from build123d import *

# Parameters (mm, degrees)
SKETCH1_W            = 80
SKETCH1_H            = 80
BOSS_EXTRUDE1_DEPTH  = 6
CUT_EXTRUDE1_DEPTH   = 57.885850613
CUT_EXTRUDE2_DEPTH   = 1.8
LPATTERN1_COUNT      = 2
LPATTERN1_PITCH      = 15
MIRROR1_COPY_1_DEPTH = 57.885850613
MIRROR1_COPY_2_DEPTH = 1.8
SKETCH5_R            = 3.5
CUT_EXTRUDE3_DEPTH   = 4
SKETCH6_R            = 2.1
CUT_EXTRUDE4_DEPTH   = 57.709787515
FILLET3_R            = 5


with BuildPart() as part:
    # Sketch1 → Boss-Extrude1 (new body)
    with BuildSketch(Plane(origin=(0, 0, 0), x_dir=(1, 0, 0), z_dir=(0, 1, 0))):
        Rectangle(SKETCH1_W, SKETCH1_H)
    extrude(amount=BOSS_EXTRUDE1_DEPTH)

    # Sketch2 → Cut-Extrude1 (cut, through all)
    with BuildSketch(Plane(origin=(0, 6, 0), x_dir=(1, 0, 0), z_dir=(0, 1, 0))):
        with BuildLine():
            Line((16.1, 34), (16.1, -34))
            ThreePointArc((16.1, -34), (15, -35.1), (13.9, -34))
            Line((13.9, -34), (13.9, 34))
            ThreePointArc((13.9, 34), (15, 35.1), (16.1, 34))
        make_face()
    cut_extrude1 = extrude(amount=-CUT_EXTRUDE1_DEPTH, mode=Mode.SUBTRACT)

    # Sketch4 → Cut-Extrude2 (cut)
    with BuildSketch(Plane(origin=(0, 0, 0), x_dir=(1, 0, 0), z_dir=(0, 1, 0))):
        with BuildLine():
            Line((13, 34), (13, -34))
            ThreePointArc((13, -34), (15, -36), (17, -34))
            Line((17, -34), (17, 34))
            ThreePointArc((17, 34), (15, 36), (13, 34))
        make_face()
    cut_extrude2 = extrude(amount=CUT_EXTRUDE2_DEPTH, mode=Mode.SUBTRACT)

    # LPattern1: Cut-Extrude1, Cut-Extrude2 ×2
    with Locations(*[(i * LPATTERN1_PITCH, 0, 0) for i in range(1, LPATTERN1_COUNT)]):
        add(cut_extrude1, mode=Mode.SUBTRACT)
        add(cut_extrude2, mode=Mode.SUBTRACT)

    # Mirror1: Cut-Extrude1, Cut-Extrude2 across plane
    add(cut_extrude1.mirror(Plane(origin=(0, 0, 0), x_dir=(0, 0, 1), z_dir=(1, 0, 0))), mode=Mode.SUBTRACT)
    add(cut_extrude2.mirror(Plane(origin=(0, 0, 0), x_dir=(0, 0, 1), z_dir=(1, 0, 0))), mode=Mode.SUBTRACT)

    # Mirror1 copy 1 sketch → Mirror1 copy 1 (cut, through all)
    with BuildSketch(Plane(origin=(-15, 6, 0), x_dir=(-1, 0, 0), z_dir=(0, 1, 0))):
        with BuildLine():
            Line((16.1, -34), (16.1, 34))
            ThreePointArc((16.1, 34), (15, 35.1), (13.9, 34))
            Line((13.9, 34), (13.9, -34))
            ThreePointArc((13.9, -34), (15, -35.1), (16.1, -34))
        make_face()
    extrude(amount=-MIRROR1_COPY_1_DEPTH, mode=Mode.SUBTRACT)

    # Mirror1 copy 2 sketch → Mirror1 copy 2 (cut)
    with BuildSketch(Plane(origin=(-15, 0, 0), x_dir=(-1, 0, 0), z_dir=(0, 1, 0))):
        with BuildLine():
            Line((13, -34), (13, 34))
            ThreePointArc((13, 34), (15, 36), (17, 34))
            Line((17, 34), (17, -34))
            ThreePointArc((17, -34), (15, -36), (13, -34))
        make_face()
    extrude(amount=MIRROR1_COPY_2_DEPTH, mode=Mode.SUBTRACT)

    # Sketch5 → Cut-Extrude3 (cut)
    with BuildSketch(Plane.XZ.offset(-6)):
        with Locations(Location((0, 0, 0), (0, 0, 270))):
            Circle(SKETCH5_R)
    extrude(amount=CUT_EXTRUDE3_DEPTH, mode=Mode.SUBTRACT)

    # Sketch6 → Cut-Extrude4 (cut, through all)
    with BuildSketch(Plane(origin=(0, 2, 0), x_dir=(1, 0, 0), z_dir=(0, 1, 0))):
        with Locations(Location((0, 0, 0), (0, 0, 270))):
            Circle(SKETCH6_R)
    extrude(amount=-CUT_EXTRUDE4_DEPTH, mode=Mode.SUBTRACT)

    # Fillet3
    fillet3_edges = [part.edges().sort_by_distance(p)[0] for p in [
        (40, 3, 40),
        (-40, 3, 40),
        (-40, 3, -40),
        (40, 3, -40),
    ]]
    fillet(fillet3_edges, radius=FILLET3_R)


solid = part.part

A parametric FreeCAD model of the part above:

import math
import FreeCAD as App
import Part
import Sketcher
from FreeCAD import Vector


def edges_at(feature, points):
    """Names of the edges that pass closest to the given points."""
    edges = feature.Shape.Edges
    near = lambda p: min(range(len(edges)), key=lambda i: edges[i].distToShape(Part.Vertex(*p))[0])
    return sorted({f"Edge{near(p) + 1}" for p in points})

doc = App.newDocument("Part")
body = doc.addObject("PartDesign::Body", "Body")

# Sketch on XZ plane
sketch1 = doc.addObject("Sketcher::SketchObject", "Sketch")
body.addObject(sketch1)
sketch1.AttachmentSupport = (doc.XZ_Plane, [""])
sketch1.MapMode = "FlatFace"
sketch1.addGeometry([
    Part.LineSegment(Vector(-40, -40, 0), Vector(-40, 40, 0)),
    Part.LineSegment(Vector(-40, 40, 0), Vector(40, 40, 0)),
    Part.LineSegment(Vector(40, 40, 0), Vector(40, -40, 0)),
    Part.LineSegment(Vector(40, -40, 0), Vector(-40, -40, 0)),
], False)
sketch1.addConstraint([
    Sketcher.Constraint("Coincident", 0, 2, 1, 1),
    Sketcher.Constraint("Coincident", 1, 2, 2, 1),
    Sketcher.Constraint("Coincident", 2, 2, 3, 1),
    Sketcher.Constraint("Coincident", 3, 2, 0, 1),
    Sketcher.Constraint("Vertical", 0),
    Sketcher.Constraint("Horizontal", 1),
    Sketcher.Constraint("Vertical", 2),
    Sketcher.Constraint("Horizontal", 3),
    Sketcher.Constraint("Symmetric", 0, 2, 2, 2, -1, 1),
    Sketcher.Constraint("Equal", 3, 0),
    Sketcher.Constraint("DistanceX", 1, 1, 1, 2, 80.0),
])
pad1 = doc.addObject("PartDesign::Pad", "Pad")
body.addObject(pad1)
pad1.Profile = sketch1
pad1.Length = 6
pad1.Reversed = True

# Sketch on XZ plane
sketch2 = doc.addObject("Sketcher::SketchObject", "Sketch001")
body.addObject(sketch2)
sketch2.AttachmentSupport = (doc.XZ_Plane, [""])
sketch2.MapMode = "FlatFace"
sketch2.AttachmentOffset = App.Placement(Vector(0, 0, -6), App.Rotation())
sketch2.addGeometry([
    Part.LineSegment(Vector(16.1, 34, 0), Vector(16.1, -34, 0)),
    Part.ArcOfCircle(Part.Circle(Vector(15, -34, 0), Vector(0, 0, 1), 1.1), math.radians(180), math.radians(360)),
    Part.LineSegment(Vector(13.9, -34, 0), Vector(13.9, 34, 0)),
    Part.ArcOfCircle(Part.Circle(Vector(15, 34, 0), Vector(0, 0, 1), 1.1), math.radians(0), math.radians(180)),
], False)
sketch2.addConstraint([
    Sketcher.Constraint("Tangent", 0, 2, 1, 2),
    Sketcher.Constraint("Tangent", 1, 1, 2, 1),
    Sketcher.Constraint("Tangent", 2, 2, 3, 2),
    Sketcher.Constraint("Tangent", 3, 1, 0, 1),
    Sketcher.Constraint("Vertical", 0),
    Sketcher.Constraint("Vertical", 2),
    Sketcher.Constraint("Radius", 1, 1.1),
    Sketcher.Constraint("DistanceY", 0, 2, 0, 1, 68.0),
    Sketcher.Constraint("DistanceX", -1, 1, 1, 3, 15.0),
    Sketcher.Constraint("DistanceY", 1, 3, -1, 1, 34.0),
])
pocket1 = doc.addObject("PartDesign::Pocket", "Pocket")
body.addObject(pocket1)
pocket1.Profile = sketch2
pocket1.Type = "ThroughAll"
pocket1.Reversed = True

# Sketch on XZ plane
sketch3 = doc.addObject("Sketcher::SketchObject", "Sketch002")
body.addObject(sketch3)
sketch3.AttachmentSupport = (doc.XZ_Plane, [""])
sketch3.MapMode = "FlatFace"
sketch3.addGeometry([
    Part.LineSegment(Vector(13, -34, 0), Vector(13, 34, 0)),
    Part.ArcOfCircle(Part.Circle(Vector(15, 34, 0), Vector(0, 0, 1), 2), math.radians(0), math.radians(180)),
    Part.LineSegment(Vector(17, 34, 0), Vector(17, -34, 0)),
    Part.ArcOfCircle(Part.Circle(Vector(15, -34, 0), Vector(0, 0, 1), 2), math.radians(180), math.radians(360)),
], False)
sketch3.addConstraint([
    Sketcher.Constraint("Tangent", 0, 2, 1, 2),
    Sketcher.Constraint("Tangent", 1, 1, 2, 1),
    Sketcher.Constraint("Tangent", 2, 2, 3, 2),
    Sketcher.Constraint("Tangent", 3, 1, 0, 1),
    Sketcher.Constraint("Vertical", 0),
    Sketcher.Constraint("Vertical", 2),
    Sketcher.Constraint("Radius", 1, 2.0),
    Sketcher.Constraint("DistanceY", 0, 1, 0, 2, 68.0),
    Sketcher.Constraint("DistanceX", -1, 1, 1, 3, 15.0),
    Sketcher.Constraint("DistanceY", -1, 1, 1, 3, 34.0),
])
pocket2 = doc.addObject("PartDesign::Pocket", "Pocket001")
body.addObject(pocket2)
pocket2.Profile = sketch3
pocket2.Length = 1.8
doc.recompute()

linearpattern = doc.addObject("PartDesign::LinearPattern", "LinearPattern")
body.addObject(linearpattern)
linearpattern.Originals = [pocket1, pocket2]
linearpattern.Direction = (doc.X_Axis, [""])
linearpattern.Mode = "offset"
linearpattern.Offset = 15
linearpattern.Occurrences = 2
body.Tip = linearpattern
doc.recompute()

mirrored = doc.addObject("PartDesign::Mirrored", "Mirrored")
body.addObject(mirrored)
mirrored.Originals = [pocket1, pocket2]
mirrored.MirrorPlane = (doc.YZ_Plane, [""])
body.Tip = mirrored

# Sketch on XZ plane
sketch4 = doc.addObject("Sketcher::SketchObject", "Sketch003")
body.addObject(sketch4)
sketch4.AttachmentSupport = (doc.XZ_Plane, [""])
sketch4.MapMode = "FlatFace"
sketch4.AttachmentOffset = App.Placement(Vector(0, 0, -6), App.Rotation())
sketch4.addGeometry([
    Part.LineSegment(Vector(-31.1, -34, 0), Vector(-31.1, 34, 0)),
    Part.ArcOfCircle(Part.Circle(Vector(-30, 34, 0), Vector(0, 0, 1), 1.1), math.radians(0), math.radians(180)),
    Part.LineSegment(Vector(-28.9, 34, 0), Vector(-28.9, -34, 0)),
    Part.ArcOfCircle(Part.Circle(Vector(-30, -34, 0), Vector(0, 0, 1), 1.1), math.radians(180), math.radians(360)),
], False)
sketch4.addConstraint([
    Sketcher.Constraint("Tangent", 0, 2, 1, 2),
    Sketcher.Constraint("Tangent", 1, 1, 2, 1),
    Sketcher.Constraint("Tangent", 2, 2, 3, 2),
    Sketcher.Constraint("Tangent", 3, 1, 0, 1),
    Sketcher.Constraint("Vertical", 0),
    Sketcher.Constraint("Vertical", 2),
    Sketcher.Constraint("Radius", 1, 1.1),
    Sketcher.Constraint("DistanceY", 0, 1, 0, 2, 68.0),
    Sketcher.Constraint("DistanceX", 1, 3, -1, 1, 30.0),
    Sketcher.Constraint("DistanceY", -1, 1, 1, 3, 34.0),
])
pocket3 = doc.addObject("PartDesign::Pocket", "Pocket002")
body.addObject(pocket3)
pocket3.Profile = sketch4
pocket3.Type = "ThroughAll"
pocket3.Reversed = True

# Sketch on XZ plane
sketch5 = doc.addObject("Sketcher::SketchObject", "Sketch004")
body.addObject(sketch5)
sketch5.AttachmentSupport = (doc.XZ_Plane, [""])
sketch5.MapMode = "FlatFace"
sketch5.addGeometry([
    Part.LineSegment(Vector(-28, 34, 0), Vector(-28, -34, 0)),
    Part.ArcOfCircle(Part.Circle(Vector(-30, -34, 0), Vector(0, 0, 1), 2), math.radians(180), math.radians(360)),
    Part.LineSegment(Vector(-32, -34, 0), Vector(-32, 34, 0)),
    Part.ArcOfCircle(Part.Circle(Vector(-30, 34, 0), Vector(0, 0, 1), 2), math.radians(0), math.radians(180)),
], False)
sketch5.addConstraint([
    Sketcher.Constraint("Tangent", 0, 2, 1, 2),
    Sketcher.Constraint("Tangent", 1, 1, 2, 1),
    Sketcher.Constraint("Tangent", 2, 2, 3, 2),
    Sketcher.Constraint("Tangent", 3, 1, 0, 1),
    Sketcher.Constraint("Vertical", 0),
    Sketcher.Constraint("Vertical", 2),
    Sketcher.Constraint("Radius", 1, 2.0),
    Sketcher.Constraint("DistanceY", 0, 2, 0, 1, 68.0),
    Sketcher.Constraint("DistanceX", 1, 3, -1, 1, 30.0),
    Sketcher.Constraint("DistanceY", 1, 3, -1, 1, 34.0),
])
pocket4 = doc.addObject("PartDesign::Pocket", "Pocket003")
body.addObject(pocket4)
pocket4.Profile = sketch5
pocket4.Length = 1.8

# Sketch on XZ plane
sketch6 = doc.addObject("Sketcher::SketchObject", "Sketch005")
body.addObject(sketch6)
sketch6.AttachmentSupport = (doc.XZ_Plane, [""])
sketch6.MapMode = "FlatFace"
sketch6.AttachmentOffset = App.Placement(Vector(0, 0, -6), App.Rotation())
sketch6.addGeometry(Part.Circle(Vector(0, 0, 0), Vector(0, 0, 1), 3.5), False)
sketch6.addConstraint([
    Sketcher.Constraint("Coincident", 0, 3, -1, 1),
    Sketcher.Constraint("Diameter", 0, 7.0),
])
pocket5 = doc.addObject("PartDesign::Pocket", "Pocket004")
body.addObject(pocket5)
pocket5.Profile = sketch6
pocket5.Length = 4
pocket5.Reversed = True

# Sketch on XZ plane
sketch7 = doc.addObject("Sketcher::SketchObject", "Sketch006")
body.addObject(sketch7)
sketch7.AttachmentSupport = (doc.XZ_Plane, [""])
sketch7.MapMode = "FlatFace"
sketch7.AttachmentOffset = App.Placement(Vector(0, 0, -2), App.Rotation())
sketch7.addGeometry(Part.Circle(Vector(0, 0, 0), Vector(0, 0, 1), 2.1), False)
sketch7.addConstraint([
    Sketcher.Constraint("Coincident", 0, 3, -1, 1),
    Sketcher.Constraint("Diameter", 0, 4.2),
])
pocket6 = doc.addObject("PartDesign::Pocket", "Pocket005")
body.addObject(pocket6)
pocket6.Profile = sketch7
pocket6.Type = "ThroughAll"
pocket6.Reversed = True
doc.recompute()

fillet = doc.addObject("PartDesign::Fillet", "Fillet")
body.addObject(fillet)
fillet.Base = (pocket6, edges_at(pocket6, [
    (40, 3, 40),
    (-40, 3, 40),
    (-40, 3, -40),
    (40, 3, -40),
]))
fillet.Radius = 5

doc.recompute()
